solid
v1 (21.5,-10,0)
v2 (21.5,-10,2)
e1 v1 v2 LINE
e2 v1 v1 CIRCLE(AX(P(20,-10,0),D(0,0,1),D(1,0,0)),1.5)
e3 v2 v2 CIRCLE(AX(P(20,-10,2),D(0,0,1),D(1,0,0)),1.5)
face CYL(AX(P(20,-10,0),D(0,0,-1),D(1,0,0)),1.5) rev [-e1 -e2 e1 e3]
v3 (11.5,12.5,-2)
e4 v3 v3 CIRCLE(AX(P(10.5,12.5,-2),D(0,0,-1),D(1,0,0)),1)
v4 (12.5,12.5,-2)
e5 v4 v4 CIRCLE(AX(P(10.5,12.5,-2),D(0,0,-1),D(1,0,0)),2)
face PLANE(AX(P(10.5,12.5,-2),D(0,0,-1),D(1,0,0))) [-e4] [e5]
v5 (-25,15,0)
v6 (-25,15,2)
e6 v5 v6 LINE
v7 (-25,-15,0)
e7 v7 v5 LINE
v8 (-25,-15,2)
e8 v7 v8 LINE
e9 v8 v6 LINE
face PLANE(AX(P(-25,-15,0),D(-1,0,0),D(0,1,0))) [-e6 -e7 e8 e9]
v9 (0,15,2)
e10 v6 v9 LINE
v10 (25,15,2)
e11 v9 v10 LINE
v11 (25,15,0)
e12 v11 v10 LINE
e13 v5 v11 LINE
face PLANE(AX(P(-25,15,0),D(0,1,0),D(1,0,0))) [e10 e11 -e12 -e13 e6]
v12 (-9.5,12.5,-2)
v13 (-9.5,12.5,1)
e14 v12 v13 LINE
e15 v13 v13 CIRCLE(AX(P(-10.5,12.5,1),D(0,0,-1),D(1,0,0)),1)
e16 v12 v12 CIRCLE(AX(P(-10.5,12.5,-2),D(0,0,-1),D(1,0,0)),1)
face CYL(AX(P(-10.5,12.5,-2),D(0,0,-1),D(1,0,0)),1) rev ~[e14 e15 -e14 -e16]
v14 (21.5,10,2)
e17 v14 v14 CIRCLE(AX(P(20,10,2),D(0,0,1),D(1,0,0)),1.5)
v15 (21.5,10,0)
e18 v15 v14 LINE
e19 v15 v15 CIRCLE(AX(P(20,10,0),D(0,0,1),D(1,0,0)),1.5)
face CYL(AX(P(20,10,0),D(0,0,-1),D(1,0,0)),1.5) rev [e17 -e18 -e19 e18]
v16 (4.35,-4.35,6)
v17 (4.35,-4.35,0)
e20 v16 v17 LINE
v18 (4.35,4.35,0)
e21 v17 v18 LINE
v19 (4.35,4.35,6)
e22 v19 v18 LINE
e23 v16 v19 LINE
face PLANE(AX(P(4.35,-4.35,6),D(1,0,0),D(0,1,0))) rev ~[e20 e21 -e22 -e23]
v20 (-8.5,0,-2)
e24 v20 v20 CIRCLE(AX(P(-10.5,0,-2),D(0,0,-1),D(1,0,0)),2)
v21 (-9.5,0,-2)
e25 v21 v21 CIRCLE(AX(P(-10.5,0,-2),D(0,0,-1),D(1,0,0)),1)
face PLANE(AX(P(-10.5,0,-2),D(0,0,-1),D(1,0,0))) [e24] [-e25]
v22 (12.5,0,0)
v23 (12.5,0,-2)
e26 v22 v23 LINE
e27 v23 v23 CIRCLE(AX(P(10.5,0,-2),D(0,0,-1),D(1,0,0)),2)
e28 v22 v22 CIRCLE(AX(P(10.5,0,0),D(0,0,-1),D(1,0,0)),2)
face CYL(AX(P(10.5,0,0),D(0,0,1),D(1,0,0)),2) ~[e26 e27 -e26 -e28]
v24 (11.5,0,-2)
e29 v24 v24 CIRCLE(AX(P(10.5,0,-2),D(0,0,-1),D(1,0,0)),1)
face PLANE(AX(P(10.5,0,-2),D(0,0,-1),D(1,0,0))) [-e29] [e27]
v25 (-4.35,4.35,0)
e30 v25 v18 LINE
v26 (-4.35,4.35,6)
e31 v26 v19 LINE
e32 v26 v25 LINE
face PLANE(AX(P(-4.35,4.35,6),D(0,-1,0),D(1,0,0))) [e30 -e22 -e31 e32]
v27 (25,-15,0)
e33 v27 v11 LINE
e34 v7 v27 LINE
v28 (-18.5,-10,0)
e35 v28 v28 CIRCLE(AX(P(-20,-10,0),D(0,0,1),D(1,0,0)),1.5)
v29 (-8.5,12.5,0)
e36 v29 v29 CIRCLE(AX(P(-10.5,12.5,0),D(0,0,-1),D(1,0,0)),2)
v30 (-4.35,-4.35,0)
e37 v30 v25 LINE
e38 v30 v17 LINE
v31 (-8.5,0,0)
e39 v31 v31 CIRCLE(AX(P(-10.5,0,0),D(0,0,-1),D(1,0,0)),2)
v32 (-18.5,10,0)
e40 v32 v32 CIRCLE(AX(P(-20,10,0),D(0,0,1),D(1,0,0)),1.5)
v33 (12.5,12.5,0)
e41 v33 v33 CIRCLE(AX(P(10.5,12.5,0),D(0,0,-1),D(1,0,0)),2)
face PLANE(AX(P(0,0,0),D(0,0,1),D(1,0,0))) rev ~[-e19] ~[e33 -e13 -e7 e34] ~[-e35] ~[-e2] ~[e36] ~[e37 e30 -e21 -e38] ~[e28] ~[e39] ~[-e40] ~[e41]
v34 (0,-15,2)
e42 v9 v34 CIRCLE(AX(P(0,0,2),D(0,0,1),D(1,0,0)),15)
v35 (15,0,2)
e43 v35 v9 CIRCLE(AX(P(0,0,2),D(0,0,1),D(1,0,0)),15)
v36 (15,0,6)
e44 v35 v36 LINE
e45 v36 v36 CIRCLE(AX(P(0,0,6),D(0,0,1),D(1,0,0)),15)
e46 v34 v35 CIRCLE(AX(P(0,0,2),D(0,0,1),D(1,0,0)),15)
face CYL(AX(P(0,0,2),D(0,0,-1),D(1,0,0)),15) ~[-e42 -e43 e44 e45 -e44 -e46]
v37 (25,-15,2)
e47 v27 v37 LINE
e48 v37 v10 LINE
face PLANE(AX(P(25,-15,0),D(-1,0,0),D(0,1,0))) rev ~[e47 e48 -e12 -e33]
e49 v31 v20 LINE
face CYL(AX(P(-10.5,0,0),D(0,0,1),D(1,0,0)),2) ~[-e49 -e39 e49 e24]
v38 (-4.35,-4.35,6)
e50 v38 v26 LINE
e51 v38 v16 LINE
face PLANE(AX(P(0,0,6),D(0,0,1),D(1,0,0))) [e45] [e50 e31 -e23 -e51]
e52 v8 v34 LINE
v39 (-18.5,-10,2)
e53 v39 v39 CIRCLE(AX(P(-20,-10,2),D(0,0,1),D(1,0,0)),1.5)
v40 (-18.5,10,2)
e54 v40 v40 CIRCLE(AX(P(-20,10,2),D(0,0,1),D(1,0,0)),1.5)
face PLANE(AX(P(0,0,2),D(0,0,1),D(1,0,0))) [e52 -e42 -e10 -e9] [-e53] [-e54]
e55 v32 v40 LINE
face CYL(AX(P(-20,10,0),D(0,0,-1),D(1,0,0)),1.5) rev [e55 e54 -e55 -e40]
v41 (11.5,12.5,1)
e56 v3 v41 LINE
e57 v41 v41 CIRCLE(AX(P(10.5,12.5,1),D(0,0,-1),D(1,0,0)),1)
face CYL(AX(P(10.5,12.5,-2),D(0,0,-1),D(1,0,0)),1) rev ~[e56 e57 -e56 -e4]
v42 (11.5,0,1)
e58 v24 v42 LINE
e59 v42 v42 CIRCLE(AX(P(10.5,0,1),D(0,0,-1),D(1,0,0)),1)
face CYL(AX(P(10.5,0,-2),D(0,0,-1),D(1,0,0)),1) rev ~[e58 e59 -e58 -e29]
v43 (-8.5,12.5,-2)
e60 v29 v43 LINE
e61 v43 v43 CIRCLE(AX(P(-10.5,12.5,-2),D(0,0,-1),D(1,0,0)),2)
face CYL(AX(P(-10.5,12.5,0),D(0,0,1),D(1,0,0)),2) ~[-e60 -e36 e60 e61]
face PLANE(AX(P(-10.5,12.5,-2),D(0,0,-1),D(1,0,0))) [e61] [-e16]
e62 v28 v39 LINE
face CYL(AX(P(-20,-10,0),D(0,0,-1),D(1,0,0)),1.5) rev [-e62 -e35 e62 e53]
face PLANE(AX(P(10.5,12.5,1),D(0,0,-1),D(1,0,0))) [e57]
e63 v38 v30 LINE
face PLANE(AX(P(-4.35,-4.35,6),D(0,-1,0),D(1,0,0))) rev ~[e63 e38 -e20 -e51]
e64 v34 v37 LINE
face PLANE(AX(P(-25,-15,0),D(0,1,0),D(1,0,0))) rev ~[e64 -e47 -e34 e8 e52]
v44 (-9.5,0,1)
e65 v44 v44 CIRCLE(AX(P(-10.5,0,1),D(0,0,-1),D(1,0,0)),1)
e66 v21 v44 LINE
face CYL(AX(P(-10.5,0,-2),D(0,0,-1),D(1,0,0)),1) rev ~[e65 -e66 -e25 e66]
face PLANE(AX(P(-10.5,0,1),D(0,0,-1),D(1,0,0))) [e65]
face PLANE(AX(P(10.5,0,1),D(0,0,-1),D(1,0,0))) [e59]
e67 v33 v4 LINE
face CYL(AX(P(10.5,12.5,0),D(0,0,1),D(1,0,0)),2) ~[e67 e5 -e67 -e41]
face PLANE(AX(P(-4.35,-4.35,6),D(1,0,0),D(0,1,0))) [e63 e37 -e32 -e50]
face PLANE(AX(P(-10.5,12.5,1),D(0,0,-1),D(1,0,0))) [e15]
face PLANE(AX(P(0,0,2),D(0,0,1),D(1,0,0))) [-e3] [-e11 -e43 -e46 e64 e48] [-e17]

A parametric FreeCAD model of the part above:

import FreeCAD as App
import Part
import Sketcher
from FreeCAD import Vector
Q = App.Units.Quantity


def add_polygon(sketch, points):
    """Adds a closed chain of lines whose ends are joined by coincident constraints."""
    first, n = sketch.GeometryCount, len(points)
    for a, b in zip(points, points[1:] + points[:1]):
        sketch.addGeometry(Part.LineSegment(App.Vector(*a, 0), App.Vector(*b, 0)), False)
    for i in range(n):
        sketch.addConstraint(Sketcher.Constraint("Coincident", first + i, 2, first + (i + 1) % n, 1))

doc = App.newDocument("Part")
body = doc.addObject("PartDesign::Body", "Body")

# Sketch on XY plane
sketch1 = body.newObject("Sketcher::SketchObject", "Sketch")
sketch1.AttachmentSupport = (doc.getObject("XY_Plane"), [""])
sketch1.MapMode = "FlatFace"
add_polygon(sketch1, [(-25, 15), (-25, -15), (25, -15), (25, 15)])  # lines 0-3
sketch1.addGeometry(Part.Circle(Vector(-20, -10, 0), Vector(0, 0, 1), 1.5), False)  # 4
sketch1.addGeometry(Part.Circle(Vector(20, -10, 0), Vector(0, 0, 1), 1.5), False)  # 5
sketch1.addGeometry(Part.Circle(Vector(-20, 10, 0), Vector(0, 0, 1), 1.5), False)  # 6
sketch1.addGeometry(Part.Circle(Vector(20, 10, 0), Vector(0, 0, 1), 1.5), False)  # 7
sketch1.addConstraint([
    Sketcher.Constraint("Vertical", 0),
    Sketcher.Constraint("Horizontal", 1),
    Sketcher.Constraint("Vertical", 2),
    Sketcher.Constraint("Horizontal", 3),
    Sketcher.Constraint("Equal", 4, 5),
    Sketcher.Constraint("Equal", 5, 6),
    Sketcher.Constraint("Equal", 6, 7),
    Sketcher.Constraint("Symmetric", 5, 3, 6, 3, -1, 1),
    Sketcher.Constraint("Symmetric", 4, 3, 7, 3, -1, 1),
    Sketcher.Constraint("Symmetric", 0, 2, 2, 2, -1, 1),
    Sketcher.Constraint("Symmetric", 4, 3, 5, 3, -2),
    Sketcher.Constraint("Diameter", 4, Q("3 mm")),
    Sketcher.Constraint("DistanceX", 1, 1, 1, 2, Q("50 mm")),
    Sketcher.Constraint("DistanceY", 0, 2, 0, 1, Q("30 mm")),
    Sketcher.Constraint("DistanceX", 4, 3, -1, 1, Q("20 mm")),
    Sketcher.Constraint("DistanceY", 4, 3, -1, 1, Q("10 mm")),
])
pad1 = body.newObject("PartDesign::Pad", "Pad")
pad1.Profile = sketch1
pad1.Length = 2

# Sketch on XY plane
sketch2 = body.newObject("Sketcher::SketchObject", "Sketch001")
sketch2.AttachmentSupport = (doc.getObject("XY_Plane"), [""])
sketch2.MapMode = "FlatFace"
sketch2.AttachmentOffset = App.Placement(Vector(0, 0, 2), App.Rotation())
sketch2.addGeometry(Part.Circle(Vector(0, 0, 0), Vector(0, 0, 1), 15), False)
sketch2.addConstraint([
    Sketcher.Constraint("Coincident", 0, 3, -1, 1),
    Sketcher.Constraint("Diameter", 0, Q("30 mm")),
])
pad2 = body.newObject("PartDesign::Pad", "Pad001")
pad2.Profile = sketch2
pad2.Length = 4

# Sketch on XY plane
sketch3 = body.newObject("Sketcher::SketchObject", "Sketch002")
sketch3.AttachmentSupport = (doc.getObject("XY_Plane"), [""])
sketch3.MapMode = "FlatFace"
sketch3.AttachmentOffset = App.Placement(Vector(0, 0, 6), App.Rotation())
add_polygon(sketch3, [(-4.35, 4.35), (-4.35, -4.35), (4.35, -4.35), (4.35, 4.35)])  # lines 0-3
sketch3.addConstraint([
    Sketcher.Constraint("Vertical", 0),
    Sketcher.Constraint("Horizontal", 1),
    Sketcher.Constraint("Vertical", 2),
    Sketcher.Constraint("Horizontal", 3),
    Sketcher.Constraint("Symmetric", 0, 2, 2, 2, -1, 1),
    Sketcher.Constraint("Equal", 3, 0),
    Sketcher.Constraint("DistanceX", 1, 1, 1, 2, Q("8.7 mm")),
])
pocket1 = body.newObject("PartDesign::Pocket", "Pocket")
pocket1.Profile = sketch3
pocket1.Length = 7

# Sketch on XY plane
sketch4 = body.newObject("Sketcher::SketchObject", "Sketch003")
sketch4.AttachmentSupport = (doc.getObject("XY_Plane"), [""])
sketch4.MapMode = "FlatFace"
sketch4.addGeometry([
    Part.Circle(Vector(-10.5, 0, 0), Vector(0, 0, 1), 2),
    Part.Circle(Vector(10.5, 12.5, 0), Vector(0, 0, 1), 2),
    Part.Circle(Vector(-10.5, 12.5, 0), Vector(0, 0, 1), 2),
    Part.Circle(Vector(10.5, 0, 0), Vector(0, 0, 1), 2),
], False)
sketch4.addConstraint([
    Sketcher.Constraint("Equal", 0, 1),
    Sketcher.Constraint("Equal", 1, 2),
    Sketcher.Constraint("Equal", 2, 3),
    Sketcher.Constraint("Symmetric", 0, 3, 3, 3, -1, 1),
    Sketcher.Constraint("Symmetric", 1, 3, 2, 3, -2),
    Sketcher.Constraint("PointOnObject", 0, 3, -1),
    Sketcher.Constraint("Vertical", 0, 3, 2, 3),
    Sketcher.Constraint("Diameter", 0, Q("4 mm")),
    Sketcher.Constraint("DistanceX", 0, 3, 1, 3, Q("21 mm")),
    Sketcher.Constraint("DistanceY", -1, 1, 1, 3, Q("12.5 mm")),
])
pad3 = body.newObject("PartDesign::Pad", "Pad002")
pad3.Profile = sketch4
pad3.Length = 2
pad3.Reversed = True

# Sketch on XY plane
sketch5 = body.newObject("Sketcher::SketchObject", "Sketch004")
sketch5.AttachmentSupport = (doc.getObject("XY_Plane"), [""])
sketch5.MapMode = "FlatFace"
sketch5.AttachmentOffset = App.Placement(Vector(0, 0, -2), App.Rotation())
sketch5.addGeometry([
    Part.Circle(Vector(-10.5, 0, 0), Vector(0, 0, 1), 1),
    Part.Circle(Vector(10.5, 0, 0), Vector(0, 0, 1), 1),
    Part.Circle(Vector(10.5, 12.5, 0), Vector(0, 0, 1), 1),
    Part.Circle(Vector(-10.5, 12.5, 0), Vector(0, 0, 1), 1),
], False)
sketch5.addConstraint([
    Sketcher.Constraint("Equal", 0, 1),
    Sketcher.Constraint("Equal", 1, 2),
    Sketcher.Constraint("Equal", 2, 3),
    Sketcher.Constraint("Symmetric", 0, 3, 1, 3, -1, 1),
    Sketcher.Constraint("Symmetric", 2, 3, 3, 3, -2),
    Sketcher.Constraint("PointOnObject", 0, 3, -1),
    Sketcher.Constraint("Vertical", 1, 3, 2, 3),
    Sketcher.Constraint("Diameter", 0, Q("2 mm")),
    Sketcher.Constraint("DistanceX", 0, 3, 1, 3, Q("21 mm")),
    Sketcher.Constraint("DistanceY", -1, 1, 2, 3, Q("12.5 mm")),
])
pocket2 = body.newObject("PartDesign::Pocket", "Pocket001")
pocket2.Profile = sketch5
pocket2.Length = 3
pocket2.Reversed = True

doc.recompute()
